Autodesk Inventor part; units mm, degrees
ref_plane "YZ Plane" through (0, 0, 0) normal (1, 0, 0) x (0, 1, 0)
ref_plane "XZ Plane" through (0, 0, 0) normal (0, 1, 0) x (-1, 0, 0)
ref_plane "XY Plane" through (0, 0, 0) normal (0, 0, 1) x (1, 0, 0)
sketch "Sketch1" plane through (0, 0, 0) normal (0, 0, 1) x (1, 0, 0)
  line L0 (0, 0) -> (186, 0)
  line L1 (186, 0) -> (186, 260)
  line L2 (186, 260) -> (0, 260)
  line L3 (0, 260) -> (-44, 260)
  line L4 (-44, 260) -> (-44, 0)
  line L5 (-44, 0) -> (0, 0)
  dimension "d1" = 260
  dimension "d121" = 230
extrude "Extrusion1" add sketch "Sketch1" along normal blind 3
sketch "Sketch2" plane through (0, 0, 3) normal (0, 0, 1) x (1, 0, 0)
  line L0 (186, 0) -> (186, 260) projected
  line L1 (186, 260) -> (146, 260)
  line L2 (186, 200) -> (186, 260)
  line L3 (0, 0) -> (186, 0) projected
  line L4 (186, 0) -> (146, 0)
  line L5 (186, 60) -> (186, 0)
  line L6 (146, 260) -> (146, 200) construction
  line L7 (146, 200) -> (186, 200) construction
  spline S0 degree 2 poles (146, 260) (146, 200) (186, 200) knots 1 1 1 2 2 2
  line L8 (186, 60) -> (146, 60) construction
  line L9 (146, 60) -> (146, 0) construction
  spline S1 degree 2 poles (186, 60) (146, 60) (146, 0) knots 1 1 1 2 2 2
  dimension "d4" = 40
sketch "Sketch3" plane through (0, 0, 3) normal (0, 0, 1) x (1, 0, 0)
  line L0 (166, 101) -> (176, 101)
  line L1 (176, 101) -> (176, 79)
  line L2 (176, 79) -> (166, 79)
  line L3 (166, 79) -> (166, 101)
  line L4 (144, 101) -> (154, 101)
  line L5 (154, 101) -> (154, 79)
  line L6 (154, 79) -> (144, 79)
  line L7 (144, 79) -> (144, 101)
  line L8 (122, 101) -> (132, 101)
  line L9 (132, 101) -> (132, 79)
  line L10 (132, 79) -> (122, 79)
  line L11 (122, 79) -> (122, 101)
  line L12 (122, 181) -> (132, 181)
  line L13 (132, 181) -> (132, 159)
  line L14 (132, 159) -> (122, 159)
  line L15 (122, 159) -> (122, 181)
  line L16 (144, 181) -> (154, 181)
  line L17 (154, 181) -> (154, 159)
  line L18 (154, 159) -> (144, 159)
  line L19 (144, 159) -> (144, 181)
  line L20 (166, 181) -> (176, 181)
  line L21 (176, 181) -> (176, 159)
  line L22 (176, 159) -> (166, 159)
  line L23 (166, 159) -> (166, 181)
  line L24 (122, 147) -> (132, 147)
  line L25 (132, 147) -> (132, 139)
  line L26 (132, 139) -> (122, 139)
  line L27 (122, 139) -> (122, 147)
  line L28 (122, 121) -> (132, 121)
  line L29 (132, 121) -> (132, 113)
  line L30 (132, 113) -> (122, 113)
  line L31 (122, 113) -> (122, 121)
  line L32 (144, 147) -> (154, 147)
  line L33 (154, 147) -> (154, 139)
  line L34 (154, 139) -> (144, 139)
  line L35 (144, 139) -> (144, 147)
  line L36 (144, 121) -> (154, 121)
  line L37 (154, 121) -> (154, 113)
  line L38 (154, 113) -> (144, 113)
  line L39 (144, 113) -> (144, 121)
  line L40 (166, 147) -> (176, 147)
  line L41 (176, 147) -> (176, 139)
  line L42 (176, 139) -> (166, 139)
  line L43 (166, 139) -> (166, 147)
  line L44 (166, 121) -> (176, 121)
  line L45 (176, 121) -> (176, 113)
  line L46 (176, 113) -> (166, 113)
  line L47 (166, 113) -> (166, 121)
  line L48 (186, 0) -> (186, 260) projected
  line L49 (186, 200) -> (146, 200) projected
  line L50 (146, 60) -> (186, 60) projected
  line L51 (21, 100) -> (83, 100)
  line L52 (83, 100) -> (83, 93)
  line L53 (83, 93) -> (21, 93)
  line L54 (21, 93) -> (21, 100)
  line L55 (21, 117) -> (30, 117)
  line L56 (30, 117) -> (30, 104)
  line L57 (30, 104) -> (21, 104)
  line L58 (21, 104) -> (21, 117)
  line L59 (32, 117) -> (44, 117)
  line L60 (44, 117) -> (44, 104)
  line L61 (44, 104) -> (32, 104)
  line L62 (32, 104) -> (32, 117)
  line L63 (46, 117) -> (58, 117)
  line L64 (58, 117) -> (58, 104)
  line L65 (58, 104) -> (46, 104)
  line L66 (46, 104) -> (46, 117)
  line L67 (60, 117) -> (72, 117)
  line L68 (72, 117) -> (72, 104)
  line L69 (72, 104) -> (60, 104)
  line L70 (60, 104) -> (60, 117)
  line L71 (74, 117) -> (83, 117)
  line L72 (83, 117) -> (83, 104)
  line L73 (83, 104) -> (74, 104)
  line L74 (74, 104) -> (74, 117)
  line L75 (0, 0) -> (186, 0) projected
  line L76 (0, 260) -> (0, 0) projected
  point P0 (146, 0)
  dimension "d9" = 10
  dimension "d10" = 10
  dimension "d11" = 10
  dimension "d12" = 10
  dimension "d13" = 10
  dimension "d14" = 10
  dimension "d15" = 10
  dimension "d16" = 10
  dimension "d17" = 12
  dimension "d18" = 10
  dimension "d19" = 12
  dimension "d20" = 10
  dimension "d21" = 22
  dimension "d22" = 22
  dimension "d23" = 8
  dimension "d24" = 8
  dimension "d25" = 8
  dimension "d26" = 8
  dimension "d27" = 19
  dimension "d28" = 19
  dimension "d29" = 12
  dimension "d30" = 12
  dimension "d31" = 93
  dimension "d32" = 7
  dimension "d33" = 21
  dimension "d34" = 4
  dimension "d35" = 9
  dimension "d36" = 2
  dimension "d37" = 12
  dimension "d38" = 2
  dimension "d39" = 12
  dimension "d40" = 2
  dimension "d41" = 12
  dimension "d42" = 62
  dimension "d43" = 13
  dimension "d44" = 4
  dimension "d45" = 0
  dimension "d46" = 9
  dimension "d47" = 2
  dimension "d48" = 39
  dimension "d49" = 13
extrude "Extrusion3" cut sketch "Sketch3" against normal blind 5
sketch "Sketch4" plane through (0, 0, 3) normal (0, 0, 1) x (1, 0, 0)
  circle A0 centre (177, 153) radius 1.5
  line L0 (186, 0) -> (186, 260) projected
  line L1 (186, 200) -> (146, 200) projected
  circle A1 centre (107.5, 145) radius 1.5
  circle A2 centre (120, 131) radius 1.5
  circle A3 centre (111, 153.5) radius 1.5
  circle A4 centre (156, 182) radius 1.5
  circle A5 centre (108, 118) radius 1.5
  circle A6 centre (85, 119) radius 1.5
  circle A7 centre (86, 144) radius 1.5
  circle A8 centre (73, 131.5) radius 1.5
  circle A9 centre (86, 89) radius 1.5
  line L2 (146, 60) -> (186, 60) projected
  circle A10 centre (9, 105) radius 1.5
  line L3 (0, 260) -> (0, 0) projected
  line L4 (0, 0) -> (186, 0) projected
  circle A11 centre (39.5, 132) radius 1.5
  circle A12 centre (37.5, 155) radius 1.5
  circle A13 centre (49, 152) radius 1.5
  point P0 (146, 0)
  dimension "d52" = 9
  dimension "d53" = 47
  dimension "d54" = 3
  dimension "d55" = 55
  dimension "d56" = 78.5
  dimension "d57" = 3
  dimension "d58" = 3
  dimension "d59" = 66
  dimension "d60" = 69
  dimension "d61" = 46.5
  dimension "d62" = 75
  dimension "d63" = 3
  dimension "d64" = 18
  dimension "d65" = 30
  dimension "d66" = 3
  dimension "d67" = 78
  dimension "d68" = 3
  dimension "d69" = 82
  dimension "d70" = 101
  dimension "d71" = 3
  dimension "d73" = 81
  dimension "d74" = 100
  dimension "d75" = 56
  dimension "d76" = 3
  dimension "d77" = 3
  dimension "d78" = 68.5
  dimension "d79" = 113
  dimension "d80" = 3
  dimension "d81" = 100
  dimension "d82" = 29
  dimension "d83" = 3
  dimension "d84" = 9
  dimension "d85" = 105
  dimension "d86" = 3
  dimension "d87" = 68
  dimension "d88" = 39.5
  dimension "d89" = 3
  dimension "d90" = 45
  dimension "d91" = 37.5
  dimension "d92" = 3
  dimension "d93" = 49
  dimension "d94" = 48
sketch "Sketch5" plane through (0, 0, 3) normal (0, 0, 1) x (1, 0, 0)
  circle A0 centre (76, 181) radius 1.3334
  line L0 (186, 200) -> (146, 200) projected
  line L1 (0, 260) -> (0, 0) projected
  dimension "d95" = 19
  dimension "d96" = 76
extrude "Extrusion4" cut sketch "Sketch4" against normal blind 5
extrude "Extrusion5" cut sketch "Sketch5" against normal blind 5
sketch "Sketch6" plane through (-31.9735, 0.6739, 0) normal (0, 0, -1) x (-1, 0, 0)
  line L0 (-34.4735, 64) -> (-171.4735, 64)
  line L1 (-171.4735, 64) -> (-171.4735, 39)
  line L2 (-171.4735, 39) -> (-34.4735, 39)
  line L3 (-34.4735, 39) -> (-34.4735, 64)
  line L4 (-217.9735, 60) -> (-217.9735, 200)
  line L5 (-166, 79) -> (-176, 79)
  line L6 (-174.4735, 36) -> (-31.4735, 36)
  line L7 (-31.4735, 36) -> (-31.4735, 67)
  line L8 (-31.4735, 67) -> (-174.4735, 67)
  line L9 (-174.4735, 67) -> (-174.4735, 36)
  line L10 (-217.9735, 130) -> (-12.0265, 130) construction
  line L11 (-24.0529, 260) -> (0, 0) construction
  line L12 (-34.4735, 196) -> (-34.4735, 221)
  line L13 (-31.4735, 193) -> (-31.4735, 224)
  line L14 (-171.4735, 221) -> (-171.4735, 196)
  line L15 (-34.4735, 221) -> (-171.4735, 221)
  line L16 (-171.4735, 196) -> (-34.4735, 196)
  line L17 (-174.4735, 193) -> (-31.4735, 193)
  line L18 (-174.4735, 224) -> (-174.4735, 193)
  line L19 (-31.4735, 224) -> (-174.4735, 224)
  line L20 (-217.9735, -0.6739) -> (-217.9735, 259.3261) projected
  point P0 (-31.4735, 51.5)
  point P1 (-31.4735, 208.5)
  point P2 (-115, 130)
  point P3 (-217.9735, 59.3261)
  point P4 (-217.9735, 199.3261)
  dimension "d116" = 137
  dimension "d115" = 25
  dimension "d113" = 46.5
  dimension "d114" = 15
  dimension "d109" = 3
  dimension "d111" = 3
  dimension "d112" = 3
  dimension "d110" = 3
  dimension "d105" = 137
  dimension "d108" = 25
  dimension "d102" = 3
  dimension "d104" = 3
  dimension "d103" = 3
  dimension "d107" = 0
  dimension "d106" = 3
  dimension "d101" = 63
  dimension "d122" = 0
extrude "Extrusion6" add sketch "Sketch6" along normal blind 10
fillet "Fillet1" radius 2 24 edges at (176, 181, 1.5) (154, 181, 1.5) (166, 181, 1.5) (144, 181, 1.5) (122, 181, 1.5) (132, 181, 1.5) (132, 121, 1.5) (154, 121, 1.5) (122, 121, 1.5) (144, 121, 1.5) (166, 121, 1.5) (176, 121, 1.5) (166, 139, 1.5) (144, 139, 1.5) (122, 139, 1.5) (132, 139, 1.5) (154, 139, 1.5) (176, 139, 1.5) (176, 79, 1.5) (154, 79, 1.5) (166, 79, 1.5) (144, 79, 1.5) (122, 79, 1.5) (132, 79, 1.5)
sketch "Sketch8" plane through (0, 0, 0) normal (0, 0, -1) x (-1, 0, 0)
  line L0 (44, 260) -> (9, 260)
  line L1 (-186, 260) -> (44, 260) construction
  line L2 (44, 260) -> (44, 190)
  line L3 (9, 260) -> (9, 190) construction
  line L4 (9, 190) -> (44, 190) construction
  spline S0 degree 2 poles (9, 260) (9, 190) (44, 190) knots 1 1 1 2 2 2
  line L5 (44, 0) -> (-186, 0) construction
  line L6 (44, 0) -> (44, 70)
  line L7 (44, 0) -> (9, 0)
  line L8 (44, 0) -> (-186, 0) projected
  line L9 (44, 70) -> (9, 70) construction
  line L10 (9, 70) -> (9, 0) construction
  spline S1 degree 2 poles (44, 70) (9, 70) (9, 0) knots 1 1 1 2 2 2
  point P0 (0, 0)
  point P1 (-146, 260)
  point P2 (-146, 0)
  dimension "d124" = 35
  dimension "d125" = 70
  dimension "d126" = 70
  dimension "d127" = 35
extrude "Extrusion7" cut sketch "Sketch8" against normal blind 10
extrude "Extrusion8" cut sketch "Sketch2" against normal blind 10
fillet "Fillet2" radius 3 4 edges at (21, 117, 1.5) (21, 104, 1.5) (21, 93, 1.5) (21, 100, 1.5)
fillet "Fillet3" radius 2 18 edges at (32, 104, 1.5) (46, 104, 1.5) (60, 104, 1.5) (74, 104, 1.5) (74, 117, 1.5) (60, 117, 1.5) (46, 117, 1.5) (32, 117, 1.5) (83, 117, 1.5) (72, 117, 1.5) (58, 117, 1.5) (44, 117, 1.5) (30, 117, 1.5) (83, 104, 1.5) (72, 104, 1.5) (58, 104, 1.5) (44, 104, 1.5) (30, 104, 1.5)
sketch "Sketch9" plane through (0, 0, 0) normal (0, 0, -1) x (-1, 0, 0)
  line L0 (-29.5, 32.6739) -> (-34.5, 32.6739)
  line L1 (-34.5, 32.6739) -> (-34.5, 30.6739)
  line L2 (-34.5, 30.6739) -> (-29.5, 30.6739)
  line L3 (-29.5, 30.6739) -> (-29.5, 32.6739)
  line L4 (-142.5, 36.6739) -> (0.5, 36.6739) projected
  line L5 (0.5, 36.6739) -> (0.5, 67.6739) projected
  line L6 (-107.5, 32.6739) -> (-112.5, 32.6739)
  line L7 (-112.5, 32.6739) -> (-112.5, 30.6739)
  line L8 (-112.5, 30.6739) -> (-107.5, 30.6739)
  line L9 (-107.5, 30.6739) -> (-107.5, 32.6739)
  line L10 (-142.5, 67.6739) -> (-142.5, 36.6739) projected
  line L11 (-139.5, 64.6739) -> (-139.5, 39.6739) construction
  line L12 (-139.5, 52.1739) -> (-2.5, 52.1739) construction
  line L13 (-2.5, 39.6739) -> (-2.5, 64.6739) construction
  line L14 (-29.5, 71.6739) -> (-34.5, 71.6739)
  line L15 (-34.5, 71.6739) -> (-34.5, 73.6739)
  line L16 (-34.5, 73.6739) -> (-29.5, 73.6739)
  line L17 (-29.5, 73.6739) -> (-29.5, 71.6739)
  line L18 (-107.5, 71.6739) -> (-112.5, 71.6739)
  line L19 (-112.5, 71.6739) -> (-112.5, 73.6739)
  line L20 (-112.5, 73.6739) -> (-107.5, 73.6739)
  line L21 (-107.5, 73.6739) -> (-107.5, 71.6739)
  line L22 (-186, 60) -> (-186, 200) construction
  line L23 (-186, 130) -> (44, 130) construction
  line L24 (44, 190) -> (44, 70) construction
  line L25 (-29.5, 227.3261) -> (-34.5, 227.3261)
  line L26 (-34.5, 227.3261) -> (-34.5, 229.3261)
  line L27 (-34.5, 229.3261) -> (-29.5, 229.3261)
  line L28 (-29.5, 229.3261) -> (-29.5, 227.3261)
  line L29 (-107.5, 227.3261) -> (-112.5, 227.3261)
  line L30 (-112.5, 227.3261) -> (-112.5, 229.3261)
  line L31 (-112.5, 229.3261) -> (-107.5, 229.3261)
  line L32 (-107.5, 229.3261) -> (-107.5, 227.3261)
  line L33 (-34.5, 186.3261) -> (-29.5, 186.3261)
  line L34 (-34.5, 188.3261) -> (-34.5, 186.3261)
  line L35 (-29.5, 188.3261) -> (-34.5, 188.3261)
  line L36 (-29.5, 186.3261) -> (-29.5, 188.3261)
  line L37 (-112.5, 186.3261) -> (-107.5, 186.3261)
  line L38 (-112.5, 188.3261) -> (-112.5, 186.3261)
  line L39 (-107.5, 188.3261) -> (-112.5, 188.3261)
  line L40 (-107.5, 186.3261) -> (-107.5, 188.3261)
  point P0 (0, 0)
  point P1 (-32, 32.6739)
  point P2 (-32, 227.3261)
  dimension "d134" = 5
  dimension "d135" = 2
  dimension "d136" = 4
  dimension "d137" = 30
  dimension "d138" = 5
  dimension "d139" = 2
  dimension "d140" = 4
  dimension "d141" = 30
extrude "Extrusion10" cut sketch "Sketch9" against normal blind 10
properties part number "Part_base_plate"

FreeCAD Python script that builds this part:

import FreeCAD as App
import Part
import Sketcher
from FreeCAD import Vector
Q = App.Units.Quantity


def edges_at(feature, points):
    """Names of the edges that pass closest to the given points."""
    edges = feature.Shape.Edges
    near = lambda p: min(range(len(edges)), key=lambda i: edges[i].distToShape(Part.Vertex(*p))[0])
    return sorted({f"Edge{near(p) + 1}" for p in points})


def add_polygon(sketch, points):
    """Adds a closed chain of lines whose ends are joined by coincident constraints."""
    first, n = sketch.GeometryCount, len(points)
    for a, b in zip(points, points[1:] + points[:1]):
        sketch.addGeometry(Part.LineSegment(App.Vector(*a, 0), App.Vector(*b, 0)), False)
    for i in range(n):
        sketch.addConstraint(Sketcher.Constraint("Coincident", first + i, 2, first + (i + 1) % n, 1))

doc = App.newDocument("Part")
body = doc.addObject("PartDesign::Body", "Body")

sketch1 = doc.addObject("Sketcher::SketchObject", "Sketch")
body.addObject(sketch1)
sketch1.AttachmentSupport = (doc.XY_Plane, [""])
sketch1.MapMode = "FlatFace"
add_polygon(sketch1, [(-44, 0), (186, 0), (186, 260), (-44, 260)])
sketch1.addConstraint(Sketcher.Constraint("Horizontal", 0))
sketch1.addConstraint(Sketcher.Constraint("Vertical", 1))
sketch1.addConstraint(Sketcher.Constraint("Horizontal", 2))
sketch1.addConstraint(Sketcher.Constraint("Vertical", 3))
sketch1.addConstraint(Sketcher.Constraint("PointOnObject", 0, 2, -1))
sketch1.addConstraint(Sketcher.Constraint("DistanceX", 0, 1, 0, 2, Q("230 mm")))
sketch1.addConstraint(Sketcher.Constraint("DistanceY", 1, 1, 1, 2, Q("260 mm")))
sketch1.addConstraint(Sketcher.Constraint("DistanceX", -1, 1, 0, 2, Q("186 mm")))
pad1 = doc.addObject("PartDesign::Pad", "Pad")
body.addObject(pad1)
pad1.Profile = sketch1
pad1.Length = 3

sketch2 = doc.addObject("Sketcher::SketchObject", "Sketch001")
body.addObject(sketch2)
sketch2.AttachmentSupport = (doc.XY_Plane, [""])
sketch2.MapMode = "FlatFace"
sketch2.AttachmentOffset = App.Placement(Vector(0, 0, 3), App.Rotation())
add_polygon(sketch2, [(176, 101), (166, 101), (166, 79), (176, 79)])
add_polygon(sketch2, [(154, 101), (144, 101), (144, 79), (154, 79)])
add_polygon(sketch2, [(132, 101), (122, 101), (122, 79), (132, 79)])
add_polygon(sketch2, [(132, 181), (122, 181), (122, 159), (132, 159)])
add_polygon(sketch2, [(154, 181), (144, 181), (144, 159), (154, 159)])
add_polygon(sketch2, [(176, 181), (166, 181), (166, 159), (176, 159)])
add_polygon(sketch2, [(132, 147), (122, 147), (122, 139), (132, 139)])
add_polygon(sketch2, [(132, 121), (122, 121), (122, 113), (132, 113)])
add_polygon(sketch2, [(154, 147), (144, 147), (144, 139), (154, 139)])
add_polygon(sketch2, [(154, 121), (144, 121), (144, 113), (154, 113)])
add_polygon(sketch2, [(176, 147), (166, 147), (166, 139), (176, 139)])
add_polygon(sketch2, [(176, 121), (166, 121), (166, 113), (176, 113)])
add_polygon(sketch2, [(83, 100), (21, 100), (21, 93), (83, 93)])
add_polygon(sketch2, [(30, 117), (21, 117), (21, 104), (30, 104)])
add_polygon(sketch2, [(44, 117), (32, 117), (32, 104), (44, 104)])
add_polygon(sketch2, [(58, 117), (46, 117), (46, 104), (58, 104)])
add_polygon(sketch2, [(72, 117), (60, 117), (60, 104), (72, 104)])
add_polygon(sketch2, [(83, 117), (74, 117), (74, 104), (83, 104)])
sketch2.addConstraint(Sketcher.Constraint("Horizontal", 0))
sketch2.addConstraint(Sketcher.Constraint("Vertical", 1))
sketch2.addConstraint(Sketcher.Constraint("Horizontal", 2))
sketch2.addConstraint(Sketcher.Constraint("Vertical", 3))
sketch2.addConstraint(Sketcher.Constraint("Horizontal", 4))
sketch2.addConstraint(Sketcher.Constraint("Vertical", 5))
sketch2.addConstraint(Sketcher.Constraint("Horizontal", 6))
sketch2.addConstraint(Sketcher.Constraint("Vertical", 7))
sketch2.addConstraint(Sketcher.Constraint("Horizontal", 8))
sketch2.addConstraint(Sketcher.Constraint("Vertical", 9))
sketch2.addConstraint(Sketcher.Constraint("Horizontal", 10))
sketch2.addConstraint(Sketcher.Constraint("Vertical", 11))
sketch2.addConstraint(Sketcher.Constraint("Horizontal", 12))
sketch2.addConstraint(Sketcher.Constraint("Vertical", 13))
sketch2.addConstraint(Sketcher.Constraint("Horizontal", 14))
sketch2.addConstraint(Sketcher.Constraint("Vertical", 15))
sketch2.addConstraint(Sketcher.Constraint("Horizontal", 16))
sketch2.addConstraint(Sketcher.Constraint("Vertical", 17))
sketch2.addConstraint(Sketcher.Constraint("Horizontal", 18))
sketch2.addConstraint(Sketcher.Constraint("Vertical", 19))
sketch2.addConstraint(Sketcher.Constraint("Horizontal", 20))
sketch2.addConstraint(Sketcher.Constraint("Vertical", 21))
sketch2.addConstraint(Sketcher.Constraint("Horizontal", 22))
sketch2.addConstraint(Sketcher.Constraint("Vertical", 23))
sketch2.addConstraint(Sketcher.Constraint("Horizontal", 24))
sketch2.addConstraint(Sketcher.Constraint("Vertical", 25))
sketch2.addConstraint(Sketcher.Constraint("Horizontal", 26))
sketch2.addConstraint(Sketcher.Constraint("Vertical", 27))
sketch2.addConstraint(Sketcher.Constraint("Horizontal", 28))
sketch2.addConstraint(Sketcher.Constraint("Vertical", 29))
sketch2.addConstraint(Sketcher.Constraint("Horizontal", 30))
sketch2.addConstraint(Sketcher.Constraint("Vertical", 31))
sketch2.addConstraint(Sketcher.Constraint("Horizontal", 32))
sketch2.addConstraint(Sketcher.Constraint("Vertical", 33))
sketch2.addConstraint(Sketcher.Constraint("Horizontal", 34))
sketch2.addConstraint(Sketcher.Constraint("Vertical", 35))
sketch2.addConstraint(Sketcher.Constraint("Horizontal", 36))
sketch2.addConstraint(Sketcher.Constraint("Vertical", 37))
sketch2.addConstraint(Sketcher.Constraint("Horizontal", 38))
sketch2.addConstraint(Sketcher.Constraint("Vertical", 39))
sketch2.addConstraint(Sketcher.Constraint("Horizontal", 40))
sketch2.addConstraint(Sketcher.Constraint("Vertical", 41))
sketch2.addConstraint(Sketcher.Constraint("Horizontal", 42))
sketch2.addConstraint(Sketcher.Constraint("Vertical", 43))
sketch2.addConstraint(Sketcher.Constraint("Horizontal", 44))
sketch2.addConstraint(Sketcher.Constraint("Vertical", 45))
sketch2.addConstraint(Sketcher.Constraint("Horizontal", 46))
sketch2.addConstraint(Sketcher.Constraint("Vertical", 47))
sketch2.addConstraint(Sketcher.Constraint("Horizontal", 48))
sketch2.addConstraint(Sketcher.Constraint("Vertical", 49))
sketch2.addConstraint(Sketcher.Constraint("Horizontal", 50))
sketch2.addConstraint(Sketcher.Constraint("Vertical", 51))
sketch2.addConstraint(Sketcher.Constraint("Horizontal", 52))
sketch2.addConstraint(Sketcher.Constraint("Vertical", 53))
sketch2.addConstraint(Sketcher.Constraint("Horizontal", 54))
sketch2.addConstraint(Sketcher.Constraint("Vertical", 55))
sketch2.addConstraint(Sketcher.Constraint("Horizontal", 56))
sketch2.addConstraint(Sketcher.Constraint("Vertical", 57))
sketch2.addConstraint(Sketcher.Constraint("Horizontal", 58))
sketch2.addConstraint(Sketcher.Constraint("Vertical", 59))
sketch2.addConstraint(Sketcher.Constraint("Horizontal", 60))
sketch2.addConstraint(Sketcher.Constraint("Vertical", 61))
sketch2.addConstraint(Sketcher.Constraint("Horizontal", 62))
sketch2.addConstraint(Sketcher.Constraint("Vertical", 63))
sketch2.addConstraint(Sketcher.Constraint("Horizontal", 64))
sketch2.addConstraint(Sketcher.Constraint("Vertical", 65))
sketch2.addConstraint(Sketcher.Constraint("Horizontal", 66))
sketch2.addConstraint(Sketcher.Constraint("Vertical", 67))
sketch2.addConstraint(Sketcher.Constraint("Horizontal", 68))
sketch2.addConstraint(Sketcher.Constraint("Vertical", 69))
sketch2.addConstraint(Sketcher.Constraint("Horizontal", 70))
sketch2.addConstraint(Sketcher.Constraint("Vertical", 71))
sketch2.addConstraint(Sketcher.Constraint("Horizontal", 3, 2, 4, 2))
sketch2.addConstraint(Sketcher.Constraint("Horizontal", 2, 2, 5, 2))
sketch2.addConstraint(Sketcher.Constraint("Horizontal", 7, 2, 8, 2))
sketch2.addConstraint(Sketcher.Constraint("Horizontal", 6, 2, 9, 2))
sketch2.addConstraint(Sketcher.Constraint("Horizontal", 15, 2, 16, 2))
sketch2.addConstraint(Sketcher.Constraint("Horizontal", 14, 2, 17, 2))
sketch2.addConstraint(Sketcher.Constraint("Horizontal", 19, 2, 20, 2))
sketch2.addConstraint(Sketcher.Constraint("Horizontal", 18, 2, 21, 2))
sketch2.addConstraint(Sketcher.Constraint("Horizontal", 27, 2, 32, 2))
sketch2.addConstraint(Sketcher.Constraint("Horizontal", 26, 2, 33, 2))
sketch2.addConstraint(Sketcher.Constraint("Horizontal", 31, 2, 36, 2))
sketch2.addConstraint(Sketcher.Constraint("Horizontal", 30, 2, 37, 2))
sketch2.addConstraint(Sketcher.Constraint("Horizontal", 35, 2, 40, 2))
sketch2.addConstraint(Sketcher.Constraint("Horizontal", 34, 2, 41, 2))
sketch2.addConstraint(Sketcher.Constraint("Horizontal", 39, 2, 44, 2))
sketch2.addConstraint(Sketcher.Constraint("Horizontal", 38, 2, 45, 2))
sketch2.addConstraint(Sketcher.Constraint("Horizontal", 55, 2, 56, 2))
sketch2.addConstraint(Sketcher.Constraint("Horizontal", 54, 2, 57, 2))
sketch2.addConstraint(Sketcher.Constraint("Horizontal", 59, 2, 60, 2))
sketch2.addConstraint(Sketcher.Constraint("Horizontal", 58, 2, 61, 2))
sketch2.addConstraint(Sketcher.Constraint("Horizontal", 63, 2, 64, 2))
sketch2.addConstraint(Sketcher.Constraint("Horizontal", 62, 2, 65, 2))
sketch2.addConstraint(Sketcher.Constraint("Horizontal", 67, 2, 68, 2))
sketch2.addConstraint(Sketcher.Constraint("Horizontal", 66, 2, 69, 2))
sketch2.addConstraint(Sketcher.Constraint("Vertical", 9, 2, 12, 2))
sketch2.addConstraint(Sketcher.Constraint("Vertical", 11, 2, 14, 2))
sketch2.addConstraint(Sketcher.Constraint("Vertical", 5, 2, 16, 2))
sketch2.addConstraint(Sketcher.Constraint("Vertical", 7, 2, 18, 2))
sketch2.addConstraint(Sketcher.Constraint("Vertical", 1, 2, 20, 2))
sketch2.addConstraint(Sketcher.Constraint("Vertical", 3, 2, 22, 2))
sketch2.addConstraint(Sketcher.Constraint("Vertical", 13, 2, 24, 2))
sketch2.addConstraint(Sketcher.Constraint("Vertical", 15, 2, 26, 2))
sketch2.addConstraint(Sketcher.Constraint("Vertical", 25, 2, 28, 2))
sketch2.addConstraint(Sketcher.Constraint("Vertical", 27, 2, 30, 2))
sketch2.addConstraint(Sketcher.Constraint("Vertical", 17, 2, 32, 2))
sketch2.addConstraint(Sketcher.Constraint("Vertical", 19, 2, 34, 2))
sketch2.addConstraint(Sketcher.Constraint("Vertical", 33, 2, 36, 2))
sketch2.addConstraint(Sketcher.Constraint("Vertical", 35, 2, 38, 2))
sketch2.addConstraint(Sketcher.Constraint("Vertical", 21, 2, 40, 2))
sketch2.addConstraint(Sketcher.Constraint("Vertical", 23, 2, 42, 2))
sketch2.addConstraint(Sketcher.Constraint("Vertical", 41, 2, 44, 2))
sketch2.addConstraint(Sketcher.Constraint("Vertical", 43, 2, 46, 2))
sketch2.addConstraint(Sketcher.Constraint("Vertical", 49, 2, 52, 2))
sketch2.addConstraint(Sketcher.Constraint("Vertical", 51, 2, 70, 2))
sketch2.addConstraint(Sketcher.Constraint("Equal", 2, 4))
sketch2.addConstraint(Sketcher.Constraint("Equal", 6, 8))
sketch2.addConstraint(Sketcher.Constraint("Equal", 58, 60))
sketch2.addConstraint(Sketcher.Constraint("Equal", 62, 64))
sketch2.addConstraint(Sketcher.Constraint("Equal", 54, 68))
sketch2.addConstraint(Sketcher.Constraint("Equal", 11, 13))
sketch2.addConstraint(Sketcher.Constraint("Equal", 27, 29))
sketch2.addConstraint(Sketcher.Constraint("DistanceX", 0, 2, 0, 1, Q("10 mm")))
sketch2.addConstraint(Sketcher.Constraint("DistanceX", 48, 2, 48, 1, Q("62 mm")))
sketch2.addConstraint(Sketcher.Constraint("DistanceX", 52, 2, 52, 1, Q("9 mm")))
sketch2.addConstraint(Sketcher.Constraint("DistanceX", 56, 2, 56, 1, Q("12 mm")))
sketch2.addConstraint(Sketcher.Constraint("DistanceY", 1, 2, 1, 1, Q("22 mm")))
sketch2.addConstraint(Sketcher.Constraint("DistanceY", 25, 2, 25, 1, Q("8 mm")))
sketch2.addConstraint(Sketcher.Constraint("DistanceY", 49, 2, 49, 1, Q("7 mm")))
sketch2.addConstraint(Sketcher.Constraint("DistanceY", 53, 2, 53, 1, Q("13 mm")))
sketch2.addConstraint(Sketcher.Constraint("DistanceX", -1, 1, 48, 2, Q("21 mm")))
sketch2.addConstraint(Sketcher.Constraint("DistanceY", -1, 1, 49, 2, Q("93 mm")))
sketch2.addConstraint(Sketcher.Constraint("DistanceX", -1, 1, 0, 2, Q("166 mm")))
sketch2.addConstraint(Sketcher.Constraint("DistanceY", -1, 1, 0, 2, Q("101 mm")))
sketch2.addConstraint(Sketcher.Constraint("DistanceX", -1, 1, 4, 2, Q("144 mm")))
sketch2.addConstraint(Sketcher.Constraint("DistanceX", -1, 1, 8, 2, Q("122 mm")))
sketch2.addConstraint(Sketcher.Constraint("DistanceY", -1, 1, 12, 2, Q("181 mm")))
sketch2.addConstraint(Sketcher.Constraint("DistanceY", -1, 1, 24, 2, Q("147 mm")))
sketch2.addConstraint(Sketcher.Constraint("DistanceY", -1, 1, 28, 2, Q("121 mm")))
sketch2.addConstraint(Sketcher.Constraint("DistanceY", -1, 1, 52, 2, Q("117 mm")))
sketch2.addConstraint(Sketcher.Constraint("DistanceX", -1, 1, 56, 2, Q("32 mm")))
sketch2.addConstraint(Sketcher.Constraint("DistanceX", -1, 1, 60, 2, Q("46 mm")))
sketch2.addConstraint(Sketcher.Constraint("DistanceX", -1, 1, 64, 2, Q("60 mm")))
pocket1 = doc.addObject("PartDesign::Pocket", "Pocket")
body.addObject(pocket1)
pocket1.Profile = sketch2
pocket1.Length = 5

sketch3 = doc.addObject("Sketcher::SketchObject", "Sketch002")
body.addObject(sketch3)
sketch3.AttachmentSupport = (doc.XY_Plane, [""])
sketch3.MapMode = "FlatFace"
sketch3.AttachmentOffset = App.Placement(Vector(0, 0, 3), App.Rotation())
sketch3.addGeometry(Part.Circle(Vector(177, 153, 0), Vector(0, 0, 1), 1.5), False)
sketch3.addGeometry(Part.Circle(Vector(107.5, 145, 0), Vector(0, 0, 1), 1.5), False)
sketch3.addGeometry(Part.Circle(Vector(120, 131, 0), Vector(0, 0, 1), 1.5), False)
sketch3.addGeometry(Part.Circle(Vector(111, 153.5, 0), Vector(0, 0, 1), 1.5), False)
sketch3.addGeometry(Part.Circle(Vector(156, 182, 0), Vector(0, 0, 1), 1.5), False)
sketch3.addGeometry(Part.Circle(Vector(108, 118, 0), Vector(0, 0, 1), 1.5), False)
sketch3.addGeometry(Part.Circle(Vector(85, 119, 0), Vector(0, 0, 1), 1.5), False)
sketch3.addGeometry(Part.Circle(Vector(86, 144, 0), Vector(0, 0, 1), 1.5), False)
sketch3.addGeometry(Part.Circle(Vector(73, 131.5, 0), Vector(0, 0, 1), 1.5), False)
sketch3.addGeometry(Part.Circle(Vector(86, 89, 0), Vector(0, 0, 1), 1.5), False)
sketch3.addGeometry(Part.Circle(Vector(9, 105, 0), Vector(0, 0, 1), 1.5), False)
sketch3.addGeometry(Part.Circle(Vector(39.5, 132, 0), Vector(0, 0, 1), 1.5), False)
sketch3.addGeometry(Part.Circle(Vector(37.5, 155, 0), Vector(0, 0, 1), 1.5), False)
sketch3.addGeometry(Part.Circle(Vector(49, 152, 0), Vector(0, 0, 1), 1.5), False)
sketch3.addConstraint(Sketcher.Constraint("Equal", 0, 1))
sketch3.addConstraint(Sketcher.Constraint("Equal", 1, 2))
sketch3.addConstraint(Sketcher.Constraint("Equal", 2, 3))
sketch3.addConstraint(Sketcher.Constraint("Equal", 3, 4))
sketch3.addConstraint(Sketcher.Constraint("Equal", 4, 5))
sketch3.addConstraint(Sketcher.Constraint("Equal", 5, 6))
sketch3.addConstraint(Sketcher.Constraint("Equal", 6, 7))
sketch3.addConstraint(Sketcher.Constraint("Equal", 7, 8))
sketch3.addConstraint(Sketcher.Constraint("Equal", 8, 9))
sketch3.addConstraint(Sketcher.Constraint("Equal", 9, 10))
sketch3.addConstraint(Sketcher.Constraint("Equal", 10, 11))
sketch3.addConstraint(Sketcher.Constraint("Equal", 11, 12))
sketch3.addConstraint(Sketcher.Constraint("Equal", 12, 13))
sketch3.addConstraint(Sketcher.Constraint("Vertical", 7, 3, 9, 3))
sketch3.addConstraint(Sketcher.Constraint("Diameter", 0, Q("3 mm")))
sketch3.addConstraint(Sketcher.Constraint("DistanceX", -1, 1, 10, 3, Q("9 mm")))
sketch3.addConstraint(Sketcher.Constraint("DistanceY", -1, 1, 10, 3, Q("105 mm")))
sketch3.addConstraint(Sketcher.Constraint("DistanceX", -1, 1, 13, 3, Q("49 mm")))
sketch3.addConstraint(Sketcher.Constraint("DistanceX", 3, 3, 2, 3, Q("9 mm")))
sketch3.addConstraint(Sketcher.Constraint("DistanceX", 3, 3, 0, 3, Q("66 mm")))
sketch3.addConstraint(Sketcher.Constraint("DistanceY", 0, 3, 4, 3, Q("29 mm")))
sketch3.addConstraint(Sketcher.Constraint("DistanceX", 3, 3, 4, 3, Q("45 mm")))
sketch3.addConstraint(Sketcher.Constraint("DistanceX", 5, 3, 3, 3, Q("3 mm")))
sketch3.addConstraint(Sketcher.Constraint("DistanceY", 9, 3, 6, 3, Q("30 mm")))
sketch3.addConstraint(Sketcher.Constraint("DistanceY", 9, 3, 5, 3, Q("29 mm")))
sketch3.addConstraint(Sketcher.Constraint("DistanceY", 9, 3, 7, 3, Q("55 mm")))
sketch3.addConstraint(Sketcher.Constraint("DistanceY", 13, 3, 12, 3, Q("3 mm")))
sketch3.addConstraint(Sketcher.Constraint("DistanceX", -1, 1, 11, 3, Q("39.5 mm")))
sketch3.addConstraint(Sketcher.Constraint("DistanceX", -1, 1, 12, 3, Q("37.5 mm")))
sketch3.addConstraint(Sketcher.Constraint("DistanceX", 11, 3, 7, 3, Q("46.5 mm")))
sketch3.addConstraint(Sketcher.Constraint("DistanceX", -1, 1, 0, 3, Q("177 mm")))
sketch3.addConstraint(Sketcher.Constraint("DistanceY", -1, 1, 0, 3, Q("153 mm")))
sketch3.addConstraint(Sketcher.Constraint("DistanceY", -1, 1, 1, 3, Q("145 mm")))
sketch3.addConstraint(Sketcher.Constraint("DistanceY", -1, 1, 2, 3, Q("131 mm")))
sketch3.addConstraint(Sketcher.Constraint("DistanceY", -1, 1, 5, 3, Q("118 mm")))
sketch3.addConstraint(Sketcher.Constraint("DistanceX", -1, 1, 6, 3, Q("85 mm")))
sketch3.addConstraint(Sketcher.Constraint("DistanceX", -1, 1, 8, 3, Q("73 mm")))
sketch3.addConstraint(Sketcher.Constraint("DistanceY", -1, 1, 11, 3, Q("132 mm")))
sketch3.addConstraint(Sketcher.Constraint("DistanceY", -1, 1, 12, 3, Q("155 mm")))
sketch3.addConstraint(Sketcher.Constraint("DistanceY", 8, 3, 3, 3, Q("22 mm")))
sketch3.addConstraint(Sketcher.Constraint("DistanceX", -1, 1, 1, 3, Q("107.5 mm")))
sketch3.addConstraint(Sketcher.Constraint("DistanceY", -1, 1, 3, 3, Q("153.5 mm")))
pocket2 = doc.addObject("PartDesign::Pocket", "Pocket001")
body.addObject(pocket2)
pocket2.Profile = sketch3
pocket2.Length = 5

sketch4 = doc.addObject("Sketcher::SketchObject", "Sketch003")
body.addObject(sketch4)
sketch4.AttachmentSupport = (doc.XY_Plane, [""])
sketch4.MapMode = "FlatFace"
sketch4.AttachmentOffset = App.Placement(Vector(0, 0, 3), App.Rotation())
sketch4.addGeometry(Part.Circle(Vector(76, 181, 0), Vector(0, 0, 1), 1.3), False)
sketch4.addConstraint(Sketcher.Constraint("DistanceX", -1, 1, 0, 3, Q("76 mm")))
sketch4.addConstraint(Sketcher.Constraint("DistanceY", -1, 1, 0, 3, Q("181 mm")))
sketch4.addConstraint(Sketcher.Constraint("Diameter", 0, Q("2.6668 mm")))
pocket3 = doc.addObject("PartDesign::Pocket", "Pocket002")
body.addObject(pocket3)
pocket3.Profile = sketch4
pocket3.Length = 5

sketch5 = doc.addObject("Sketcher::SketchObject", "Sketch004")
body.addObject(sketch5)
sketch5.AttachmentSupport = (doc.XY_Plane, [""])
sketch5.MapMode = "FlatFace"
add_polygon(sketch5, [(142, 68), (142, 37), (0, 37), (0, 68)])
add_polygon(sketch5, [(140, 65), (2, 65), (2, 40), (140, 40)])
add_polygon(sketch5, [(142, 194), (0, 194), (0, 225), (142, 225)])
add_polygon(sketch5, [(2, 222), (2, 197), (140, 197), (140, 222)])
sketch5.addConstraint(Sketcher.Constraint("Vertical", 0))
sketch5.addConstraint(Sketcher.Constraint("Horizontal", 1))
sketch5.addConstraint(Sketcher.Constraint("Vertical", 2))
sketch5.addConstraint(Sketcher.Constraint("Horizontal", 3))
sketch5.addConstraint(Sketcher.Constraint("Horizontal", 4))
sketch5.addConstraint(Sketcher.Constraint("Vertical", 5))
sketch5.addConstraint(Sketcher.Constraint("Horizontal", 6))
sketch5.addConstraint(Sketcher.Constraint("Vertical", 7))
sketch5.addConstraint(Sketcher.Constraint("Horizontal", 8))
sketch5.addConstraint(Sketcher.Constraint("Vertical", 9))
sketch5.addConstraint(Sketcher.Constraint("Horizontal", 10))
sketch5.addConstraint(Sketcher.Constraint("Vertical", 11))
sketch5.addConstraint(Sketcher.Constraint("Vertical", 12))
sketch5.addConstraint(Sketcher.Constraint("Horizontal", 13))
sketch5.addConstraint(Sketcher.Constraint("Vertical", 14))
sketch5.addConstraint(Sketcher.Constraint("Horizontal", 15))
sketch5.addConstraint(Sketcher.Constraint("Vertical", 2, 2, 8, 2))
sketch5.addConstraint(Sketcher.Constraint("Vertical", 3, 2, 10, 2))
sketch5.addConstraint(Sketcher.Constraint("Vertical", 5, 2, 12, 2))
sketch5.addConstraint(Sketcher.Constraint("Vertical", 7, 2, 13, 2))
sketch5.addConstraint(Sketcher.Constraint("Equal", 2, 9))
sketch5.addConstraint(Sketcher.Constraint("Equal", 7, 12))
sketch5.addConstraint(Sketcher.Constraint("DistanceX", 4, 2, 4, 1, Q("137 mm")))
sketch5.addConstraint(Sketcher.Constraint("DistanceY", 5, 2, 5, 1, Q("25 mm")))
sketch5.addConstraint(Sketcher.Constraint("DistanceX", 2, 2, 4, 2, Q("3 mm")))
sketch5.addConstraint(Sketcher.Constraint("DistanceY", 4, 2, 2, 2, Q("3 mm")))
sketch5.addConstraint(Sketcher.Constraint("DistanceY", 1, 2, 5, 2, Q("3 mm")))
sketch5.addConstraint(Sketcher.Constraint("DistanceX", 6, 2, 0, 2, Q("3 mm")))
sketch5.addConstraint(Sketcher.Constraint("DistanceY", 8, 2, 12, 2, Q("3 mm")))
sketch5.addConstraint(Sketcher.Constraint("DistanceY", 2, 2, 8, 2, Q("126 mm")))
sketch5.addConstraint(Sketcher.Constraint("DistanceX", -1, 1, 0, 2, Q("142.5 mm")))
sketch5.addConstraint(Sketcher.Constraint("DistanceY", -1, 1, 0, 2, Q("36.674 mm")))
pad2 = doc.addObject("PartDesign::Pad", "Pad001")
body.addObject(pad2)
pad2.Profile = sketch5
pad2.Length = 10
pad2.Reversed = True
doc.recompute()

fillet = doc.addObject("PartDesign::Fillet", "Fillet")
body.addObject(fillet)
fillet.Base = (pad2, edges_at(pad2, [
    (176, 181, 1.5),
    (154, 181, 1.5),
    (166, 181, 1.5),
    (144, 181, 1.5),
    (122, 181, 1.5),
    (132, 181, 1.5),
    (132, 121, 1.5),
    (154, 121, 1.5),
    (122, 121, 1.5),
    (144, 121, 1.5),
    (166, 121, 1.5),
    (176, 121, 1.5),
    (166, 139, 1.5),
    (144, 139, 1.5),
    (122, 139, 1.5),
    (132, 139, 1.5),
    (154, 139, 1.5),
    (176, 139, 1.5),
    (176, 79, 1.5),
    (154, 79, 1.5),
    (166, 79, 1.5),
    (144, 79, 1.5),
    (122, 79, 1.5),
    (132, 79, 1.5),
]))
fillet.Radius = 2

sketch6 = doc.addObject("Sketcher::SketchObject", "Sketch005")
body.addObject(sketch6)
sketch6.AttachmentSupport = (doc.XY_Plane, [""])
sketch6.MapMode = "FlatFace"
sketch6.addGeometry(Part.LineSegment(Vector(-44, 190, 0), Vector(-44, 260, 0)), False)
sketch6.addGeometry(Part.LineSegment(Vector(-44, 260, 0), Vector(-9, 260, 0)), False)
sketch6.addGeometry(Part.BSplineCurve([Vector(-9, 260, 0), Vector(-9, 190, 0), Vector(-44, 190, 0)], [3, 3], [1, 2], False, 2, [1, 1, 1], False), False)
sketch6.addGeometry(Part.LineSegment(Vector(-9, 0, 0), Vector(-44, 0, 0)), False)
sketch6.addGeometry(Part.LineSegment(Vector(-44, 0, 0), Vector(-44, 70, 0)), False)
sketch6.addGeometry(Part.BSplineCurve([Vector(-44, 70, 0), Vector(-9, 70, 0), Vector(-9, 0, 0)], [3, 3], [1, 2], False, 2, [1, 1, 1], False), False)
sketch6.addConstraint(Sketcher.Constraint("Block", 2))
sketch6.addConstraint(Sketcher.Constraint("Block", 5))
sketch6.addConstraint(Sketcher.Constraint("Coincident", 0, 2, 1, 1))
sketch6.addConstraint(Sketcher.Constraint("Coincident", 1, 2, 2, 1))
sketch6.addConstraint(Sketcher.Constraint("Coincident", 2, 2, 0, 1))
sketch6.addConstraint(Sketcher.Constraint("Coincident", 3, 2, 4, 1))
sketch6.addConstraint(Sketcher.Constraint("Coincident", 4, 2, 5, 1))
sketch6.addConstraint(Sketcher.Constraint("Coincident", 5, 2, 3, 1))
sketch6.addConstraint(Sketcher.Constraint("Vertical", 0))
sketch6.addConstraint(Sketcher.Constraint("Horizontal", 1))
sketch6.addConstraint(Sketcher.Constraint("Horizontal", 3))
sketch6.addConstraint(Sketcher.Constraint("Vertical", 4))
pocket4 = doc.addObject("PartDesign::Pocket", "Pocket003")
body.addObject(pocket4)
pocket4.Profile = sketch6
pocket4.Length = 10
pocket4.Reversed = True

sketch7 = doc.addObject("Sketcher::SketchObject", "Sketch006")
body.addObject(sketch7)
sketch7.AttachmentSupport = (doc.XY_Plane, [""])
sketch7.MapMode = "FlatFace"
sketch7.AttachmentOffset = App.Placement(Vector(0, 0, 3), App.Rotation())
sketch7.addGeometry(Part.LineSegment(Vector(146, 0, 0), Vector(186, 0, 0)), False)
sketch7.addGeometry(Part.LineSegment(Vector(186, 0, 0), Vector(186, 60, 0)), False)
sketch7.addGeometry(Part.BSplineCurve([Vector(186, 60, 0), Vector(146, 60, 0), Vector(146, 0, 0)], [3, 3], [1, 2], False, 2, [1, 1, 1], False), False)
sketch7.addGeometry(Part.BSplineCurve([Vector(146, 260, 0), Vector(146, 200, 0), Vector(186, 200, 0)], [3, 3], [1, 2], False, 2, [1, 1, 1], False), False)
sketch7.addGeometry(Part.LineSegment(Vector(186, 200, 0), Vector(186, 260, 0)), False)
sketch7.addGeometry(Part.LineSegment(Vector(186, 260, 0), Vector(146, 260, 0)), False)
sketch7.addConstraint(Sketcher.Constraint("Block", 2))
sketch7.addConstraint(Sketcher.Constraint("Block", 3))
sketch7.addConstraint(Sketcher.Constraint("Coincident", 0, 2, 1, 1))
sketch7.addConstraint(Sketcher.Constraint("Coincident", 1, 2, 2, 1))
sketch7.addConstraint(Sketcher.Constraint("Coincident", 2, 2, 0, 1))
sketch7.addConstraint(Sketcher.Constraint("Coincident", 3, 2, 4, 1))
sketch7.addConstraint(Sketcher.Constraint("Coincident", 4, 2, 5, 1))
sketch7.addConstraint(Sketcher.Constraint("Coincident", 5, 2, 3, 1))
sketch7.addConstraint(Sketcher.Constraint("Horizontal", 0))
sketch7.addConstraint(Sketcher.Constraint("Vertical", 1))
sketch7.addConstraint(Sketcher.Constraint("Vertical", 4))
sketch7.addConstraint(Sketcher.Constraint("Horizontal", 5))
pocket5 = doc.addObject("PartDesign::Pocket", "Pocket004")
body.addObject(pocket5)
pocket5.Profile = sketch7
pocket5.Length = 10
doc.recompute()

fillet2 = doc.addObject("PartDesign::Fillet", "Fillet001")
body.addObject(fillet2)
fillet2.Base = (pocket5, edges_at(pocket5, [
    (21, 117, 1.5),
    (21, 104, 1.5),
    (21, 93, 1.5),
    (21, 100, 1.5),
]))
fillet2.Radius = 3
doc.recompute()

fillet3 = doc.addObject("PartDesign::Fillet", "Fillet002")
body.addObject(fillet3)
fillet3.Base = (fillet2, edges_at(fillet2, [
    (32, 104, 1.5),
    (46, 104, 1.5),
    (60, 104, 1.5),
    (74, 104, 1.5),
    (74, 117, 1.5),
    (60, 117, 1.5),
    (46, 117, 1.5),
    (32, 117, 1.5),
    (83, 117, 1.5),
    (72, 117, 1.5),
    (58, 117, 1.5),
    (44, 117, 1.5),
    (30, 117, 1.5),
    (83, 104, 1.5),
    (72, 104, 1.5),
    (58, 104, 1.5),
    (44, 104, 1.5),
    (30, 104, 1.5),
]))
fillet3.Radius = 2

sketch8 = doc.addObject("Sketcher::SketchObject", "Sketch007")
body.addObject(sketch8)
sketch8.AttachmentSupport = (doc.XY_Plane, [""])
sketch8.MapMode = "FlatFace"
add_polygon(sketch8, [(29.5, 30.7), (29.5, 32.7), (34.5, 32.7), (34.5, 30.7)])
add_polygon(sketch8, [(107.5, 30.7), (107.5, 32.7), (112.5, 32.7), (112.5, 30.7)])
add_polygon(sketch8, [(34.5, 71.7), (29.5, 71.7), (29.5, 73.7), (34.5, 73.7)])
add_polygon(sketch8, [(112.5, 71.7), (107.5, 71.7), (107.5, 73.7), (112.5, 73.7)])
add_polygon(sketch8, [(34.5, 227.3), (29.5, 227.3), (29.5, 229.3), (34.5, 229.3)])
add_polygon(sketch8, [(112.5, 227.3), (107.5, 227.3), (107.5, 229.3), (112.5, 229.3)])
add_polygon(sketch8, [(34.5, 188.3), (34.5, 186.3), (29.5, 186.3), (29.5, 188.3)])
add_polygon(sketch8, [(112.5, 188.3), (112.5, 186.3), (107.5, 186.3), (107.5, 188.3)])
sketch8.addConstraint(Sketcher.Constraint("Vertical", 0))
sketch8.addConstraint(Sketcher.Constraint("Horizontal", 1))
sketch8.addConstraint(Sketcher.Constraint("Vertical", 2))
sketch8.addConstraint(Sketcher.Constraint("Horizontal", 3))
sketch8.addConstraint(Sketcher.Constraint("Vertical", 4))
sketch8.addConstraint(Sketcher.Constraint("Horizontal", 5))
sketch8.addConstraint(Sketcher.Constraint("Vertical", 6))
sketch8.addConstraint(Sketcher.Constraint("Horizontal", 7))
sketch8.addConstraint(Sketcher.Constraint("Horizontal", 8))
sketch8.addConstraint(Sketcher.Constraint("Vertical", 9))
sketch8.addConstraint(Sketcher.Constraint("Horizontal", 10))
sketch8.addConstraint(Sketcher.Constraint("Vertical", 11))
sketch8.addConstraint(Sketcher.Constraint("Horizontal", 12))
sketch8.addConstraint(Sketcher.Constraint("Vertical", 13))
sketch8.addConstraint(Sketcher.Constraint("Horizontal", 14))
sketch8.addConstraint(Sketcher.Constraint("Vertical", 15))
sketch8.addConstraint(Sketcher.Constraint("Horizontal", 16))
sketch8.addConstraint(Sketcher.Constraint("Vertical", 17))
sketch8.addConstraint(Sketcher.Constraint("Horizontal", 18))
sketch8.addConstraint(Sketcher.Constraint("Vertical", 19))
sketch8.addConstraint(Sketcher.Constraint("Horizontal", 20))
sketch8.addConstraint(Sketcher.Constraint("Vertical", 21))
sketch8.addConstraint(Sketcher.Constraint("Horizontal", 22))
sketch8.addConstraint(Sketcher.Constraint("Vertical", 23))
sketch8.addConstraint(Sketcher.Constraint("Vertical", 24))
sketch8.addConstraint(Sketcher.Constraint("Horizontal", 25))
sketch8.addConstraint(Sketcher.Constraint("Vertical", 26))
sketch8.addConstraint(Sketcher.Constraint("Horizontal", 27))
sketch8.addConstraint(Sketcher.Constraint("Vertical", 28))
sketch8.addConstraint(Sketcher.Constraint("Horizontal", 29))
sketch8.addConstraint(Sketcher.Constraint("Vertical", 30))
sketch8.addConstraint(Sketcher.Constraint("Horizontal", 31))
sketch8.addConstraint(Sketcher.Constraint("Horizontal", 1, 2, 4, 2))
sketch8.addConstraint(Sketcher.Constraint("Horizontal", 3, 2, 6, 2))
sketch8.addConstraint(Sketcher.Constraint("Horizontal", 11, 2, 12, 2))
sketch8.addConstraint(Sketcher.Constraint("Horizontal", 10, 2, 13, 2))
sketch8.addConstraint(Sketcher.Constraint("Horizontal", 19, 2, 20, 2))
sketch8.addConstraint(Sketcher.Constraint("Horizontal", 18, 2, 21, 2))
sketch8.addConstraint(Sketcher.Constraint("Horizontal", 25, 2, 28, 2))
sketch8.addConstraint(Sketcher.Constraint("Horizontal", 27, 2, 30, 2))
sketch8.addConstraint(Sketcher.Constraint("Vertical", 3, 2, 8, 2))
sketch8.addConstraint(Sketcher.Constraint("Vertical", 2, 2, 10, 2))
sketch8.addConstraint(Sketcher.Constraint("Vertical", 7, 2, 12, 2))
sketch8.addConstraint(Sketcher.Constraint("Vertical", 6, 2, 14, 2))
sketch8.addConstraint(Sketcher.Constraint("Vertical", 9, 2, 16, 2))
sketch8.addConstraint(Sketcher.Constraint("Vertical", 11, 2, 18, 2))
sketch8.addConstraint(Sketcher.Constraint("Vertical", 13, 2, 20, 2))
sketch8.addConstraint(Sketcher.Constraint("Vertical", 15, 2, 22, 2))
sketch8.addConstraint(Sketcher.Constraint("Vertical", 19, 2, 24, 2))
sketch8.addConstraint(Sketcher.Constraint("Vertical", 17, 2, 25, 2))
sketch8.addConstraint(Sketcher.Constraint("Vertical", 23, 2, 28, 2))
sketch8.addConstraint(Sketcher.Constraint("Vertical", 21, 2, 29, 2))
sketch8.addConstraint(Sketcher.Constraint("Equal", 3, 5))
sketch8.addConstraint(Sketcher.Constraint("Equal", 6, 9))
sketch8.addConstraint(Sketcher.Constraint("Equal", 15, 17))
sketch8.addConstraint(Sketcher.Constraint("Equal", 23, 24))
sketch8.addConstraint(Sketcher.Constraint("DistanceX", 1, 1, 1, 2, Q("5 mm")))
sketch8.addConstraint(Sketcher.Constraint("DistanceY", 0, 1, 0, 2, Q("2 mm")))
sketch8.addConstraint(Sketcher.Constraint("DistanceX", 1, 2, 4, 2, Q("73 mm")))
sketch8.addConstraint(Sketcher.Constraint("DistanceY", 0, 2, 8, 2, Q("39 mm")))
sketch8.addConstraint(Sketcher.Constraint("DistanceY", 24, 2, 19, 2, Q("41 mm")))
sketch8.addConstraint(Sketcher.Constraint("DistanceX", -1, 1, 0, 2, Q("29.5 mm")))
sketch8.addConstraint(Sketcher.Constraint("DistanceY", -1, 1, 0, 2, Q("32.674 mm")))
sketch8.addConstraint(Sketcher.Constraint("DistanceY", -1, 1, 16, 2, Q("227.326 mm")))
pocket6 = doc.addObject("PartDesign::Pocket", "Pocket005")
body.addObject(pocket6)
pocket6.Profile = sketch8
pocket6.Length = 10
pocket6.Reversed = True

doc.recompute()
